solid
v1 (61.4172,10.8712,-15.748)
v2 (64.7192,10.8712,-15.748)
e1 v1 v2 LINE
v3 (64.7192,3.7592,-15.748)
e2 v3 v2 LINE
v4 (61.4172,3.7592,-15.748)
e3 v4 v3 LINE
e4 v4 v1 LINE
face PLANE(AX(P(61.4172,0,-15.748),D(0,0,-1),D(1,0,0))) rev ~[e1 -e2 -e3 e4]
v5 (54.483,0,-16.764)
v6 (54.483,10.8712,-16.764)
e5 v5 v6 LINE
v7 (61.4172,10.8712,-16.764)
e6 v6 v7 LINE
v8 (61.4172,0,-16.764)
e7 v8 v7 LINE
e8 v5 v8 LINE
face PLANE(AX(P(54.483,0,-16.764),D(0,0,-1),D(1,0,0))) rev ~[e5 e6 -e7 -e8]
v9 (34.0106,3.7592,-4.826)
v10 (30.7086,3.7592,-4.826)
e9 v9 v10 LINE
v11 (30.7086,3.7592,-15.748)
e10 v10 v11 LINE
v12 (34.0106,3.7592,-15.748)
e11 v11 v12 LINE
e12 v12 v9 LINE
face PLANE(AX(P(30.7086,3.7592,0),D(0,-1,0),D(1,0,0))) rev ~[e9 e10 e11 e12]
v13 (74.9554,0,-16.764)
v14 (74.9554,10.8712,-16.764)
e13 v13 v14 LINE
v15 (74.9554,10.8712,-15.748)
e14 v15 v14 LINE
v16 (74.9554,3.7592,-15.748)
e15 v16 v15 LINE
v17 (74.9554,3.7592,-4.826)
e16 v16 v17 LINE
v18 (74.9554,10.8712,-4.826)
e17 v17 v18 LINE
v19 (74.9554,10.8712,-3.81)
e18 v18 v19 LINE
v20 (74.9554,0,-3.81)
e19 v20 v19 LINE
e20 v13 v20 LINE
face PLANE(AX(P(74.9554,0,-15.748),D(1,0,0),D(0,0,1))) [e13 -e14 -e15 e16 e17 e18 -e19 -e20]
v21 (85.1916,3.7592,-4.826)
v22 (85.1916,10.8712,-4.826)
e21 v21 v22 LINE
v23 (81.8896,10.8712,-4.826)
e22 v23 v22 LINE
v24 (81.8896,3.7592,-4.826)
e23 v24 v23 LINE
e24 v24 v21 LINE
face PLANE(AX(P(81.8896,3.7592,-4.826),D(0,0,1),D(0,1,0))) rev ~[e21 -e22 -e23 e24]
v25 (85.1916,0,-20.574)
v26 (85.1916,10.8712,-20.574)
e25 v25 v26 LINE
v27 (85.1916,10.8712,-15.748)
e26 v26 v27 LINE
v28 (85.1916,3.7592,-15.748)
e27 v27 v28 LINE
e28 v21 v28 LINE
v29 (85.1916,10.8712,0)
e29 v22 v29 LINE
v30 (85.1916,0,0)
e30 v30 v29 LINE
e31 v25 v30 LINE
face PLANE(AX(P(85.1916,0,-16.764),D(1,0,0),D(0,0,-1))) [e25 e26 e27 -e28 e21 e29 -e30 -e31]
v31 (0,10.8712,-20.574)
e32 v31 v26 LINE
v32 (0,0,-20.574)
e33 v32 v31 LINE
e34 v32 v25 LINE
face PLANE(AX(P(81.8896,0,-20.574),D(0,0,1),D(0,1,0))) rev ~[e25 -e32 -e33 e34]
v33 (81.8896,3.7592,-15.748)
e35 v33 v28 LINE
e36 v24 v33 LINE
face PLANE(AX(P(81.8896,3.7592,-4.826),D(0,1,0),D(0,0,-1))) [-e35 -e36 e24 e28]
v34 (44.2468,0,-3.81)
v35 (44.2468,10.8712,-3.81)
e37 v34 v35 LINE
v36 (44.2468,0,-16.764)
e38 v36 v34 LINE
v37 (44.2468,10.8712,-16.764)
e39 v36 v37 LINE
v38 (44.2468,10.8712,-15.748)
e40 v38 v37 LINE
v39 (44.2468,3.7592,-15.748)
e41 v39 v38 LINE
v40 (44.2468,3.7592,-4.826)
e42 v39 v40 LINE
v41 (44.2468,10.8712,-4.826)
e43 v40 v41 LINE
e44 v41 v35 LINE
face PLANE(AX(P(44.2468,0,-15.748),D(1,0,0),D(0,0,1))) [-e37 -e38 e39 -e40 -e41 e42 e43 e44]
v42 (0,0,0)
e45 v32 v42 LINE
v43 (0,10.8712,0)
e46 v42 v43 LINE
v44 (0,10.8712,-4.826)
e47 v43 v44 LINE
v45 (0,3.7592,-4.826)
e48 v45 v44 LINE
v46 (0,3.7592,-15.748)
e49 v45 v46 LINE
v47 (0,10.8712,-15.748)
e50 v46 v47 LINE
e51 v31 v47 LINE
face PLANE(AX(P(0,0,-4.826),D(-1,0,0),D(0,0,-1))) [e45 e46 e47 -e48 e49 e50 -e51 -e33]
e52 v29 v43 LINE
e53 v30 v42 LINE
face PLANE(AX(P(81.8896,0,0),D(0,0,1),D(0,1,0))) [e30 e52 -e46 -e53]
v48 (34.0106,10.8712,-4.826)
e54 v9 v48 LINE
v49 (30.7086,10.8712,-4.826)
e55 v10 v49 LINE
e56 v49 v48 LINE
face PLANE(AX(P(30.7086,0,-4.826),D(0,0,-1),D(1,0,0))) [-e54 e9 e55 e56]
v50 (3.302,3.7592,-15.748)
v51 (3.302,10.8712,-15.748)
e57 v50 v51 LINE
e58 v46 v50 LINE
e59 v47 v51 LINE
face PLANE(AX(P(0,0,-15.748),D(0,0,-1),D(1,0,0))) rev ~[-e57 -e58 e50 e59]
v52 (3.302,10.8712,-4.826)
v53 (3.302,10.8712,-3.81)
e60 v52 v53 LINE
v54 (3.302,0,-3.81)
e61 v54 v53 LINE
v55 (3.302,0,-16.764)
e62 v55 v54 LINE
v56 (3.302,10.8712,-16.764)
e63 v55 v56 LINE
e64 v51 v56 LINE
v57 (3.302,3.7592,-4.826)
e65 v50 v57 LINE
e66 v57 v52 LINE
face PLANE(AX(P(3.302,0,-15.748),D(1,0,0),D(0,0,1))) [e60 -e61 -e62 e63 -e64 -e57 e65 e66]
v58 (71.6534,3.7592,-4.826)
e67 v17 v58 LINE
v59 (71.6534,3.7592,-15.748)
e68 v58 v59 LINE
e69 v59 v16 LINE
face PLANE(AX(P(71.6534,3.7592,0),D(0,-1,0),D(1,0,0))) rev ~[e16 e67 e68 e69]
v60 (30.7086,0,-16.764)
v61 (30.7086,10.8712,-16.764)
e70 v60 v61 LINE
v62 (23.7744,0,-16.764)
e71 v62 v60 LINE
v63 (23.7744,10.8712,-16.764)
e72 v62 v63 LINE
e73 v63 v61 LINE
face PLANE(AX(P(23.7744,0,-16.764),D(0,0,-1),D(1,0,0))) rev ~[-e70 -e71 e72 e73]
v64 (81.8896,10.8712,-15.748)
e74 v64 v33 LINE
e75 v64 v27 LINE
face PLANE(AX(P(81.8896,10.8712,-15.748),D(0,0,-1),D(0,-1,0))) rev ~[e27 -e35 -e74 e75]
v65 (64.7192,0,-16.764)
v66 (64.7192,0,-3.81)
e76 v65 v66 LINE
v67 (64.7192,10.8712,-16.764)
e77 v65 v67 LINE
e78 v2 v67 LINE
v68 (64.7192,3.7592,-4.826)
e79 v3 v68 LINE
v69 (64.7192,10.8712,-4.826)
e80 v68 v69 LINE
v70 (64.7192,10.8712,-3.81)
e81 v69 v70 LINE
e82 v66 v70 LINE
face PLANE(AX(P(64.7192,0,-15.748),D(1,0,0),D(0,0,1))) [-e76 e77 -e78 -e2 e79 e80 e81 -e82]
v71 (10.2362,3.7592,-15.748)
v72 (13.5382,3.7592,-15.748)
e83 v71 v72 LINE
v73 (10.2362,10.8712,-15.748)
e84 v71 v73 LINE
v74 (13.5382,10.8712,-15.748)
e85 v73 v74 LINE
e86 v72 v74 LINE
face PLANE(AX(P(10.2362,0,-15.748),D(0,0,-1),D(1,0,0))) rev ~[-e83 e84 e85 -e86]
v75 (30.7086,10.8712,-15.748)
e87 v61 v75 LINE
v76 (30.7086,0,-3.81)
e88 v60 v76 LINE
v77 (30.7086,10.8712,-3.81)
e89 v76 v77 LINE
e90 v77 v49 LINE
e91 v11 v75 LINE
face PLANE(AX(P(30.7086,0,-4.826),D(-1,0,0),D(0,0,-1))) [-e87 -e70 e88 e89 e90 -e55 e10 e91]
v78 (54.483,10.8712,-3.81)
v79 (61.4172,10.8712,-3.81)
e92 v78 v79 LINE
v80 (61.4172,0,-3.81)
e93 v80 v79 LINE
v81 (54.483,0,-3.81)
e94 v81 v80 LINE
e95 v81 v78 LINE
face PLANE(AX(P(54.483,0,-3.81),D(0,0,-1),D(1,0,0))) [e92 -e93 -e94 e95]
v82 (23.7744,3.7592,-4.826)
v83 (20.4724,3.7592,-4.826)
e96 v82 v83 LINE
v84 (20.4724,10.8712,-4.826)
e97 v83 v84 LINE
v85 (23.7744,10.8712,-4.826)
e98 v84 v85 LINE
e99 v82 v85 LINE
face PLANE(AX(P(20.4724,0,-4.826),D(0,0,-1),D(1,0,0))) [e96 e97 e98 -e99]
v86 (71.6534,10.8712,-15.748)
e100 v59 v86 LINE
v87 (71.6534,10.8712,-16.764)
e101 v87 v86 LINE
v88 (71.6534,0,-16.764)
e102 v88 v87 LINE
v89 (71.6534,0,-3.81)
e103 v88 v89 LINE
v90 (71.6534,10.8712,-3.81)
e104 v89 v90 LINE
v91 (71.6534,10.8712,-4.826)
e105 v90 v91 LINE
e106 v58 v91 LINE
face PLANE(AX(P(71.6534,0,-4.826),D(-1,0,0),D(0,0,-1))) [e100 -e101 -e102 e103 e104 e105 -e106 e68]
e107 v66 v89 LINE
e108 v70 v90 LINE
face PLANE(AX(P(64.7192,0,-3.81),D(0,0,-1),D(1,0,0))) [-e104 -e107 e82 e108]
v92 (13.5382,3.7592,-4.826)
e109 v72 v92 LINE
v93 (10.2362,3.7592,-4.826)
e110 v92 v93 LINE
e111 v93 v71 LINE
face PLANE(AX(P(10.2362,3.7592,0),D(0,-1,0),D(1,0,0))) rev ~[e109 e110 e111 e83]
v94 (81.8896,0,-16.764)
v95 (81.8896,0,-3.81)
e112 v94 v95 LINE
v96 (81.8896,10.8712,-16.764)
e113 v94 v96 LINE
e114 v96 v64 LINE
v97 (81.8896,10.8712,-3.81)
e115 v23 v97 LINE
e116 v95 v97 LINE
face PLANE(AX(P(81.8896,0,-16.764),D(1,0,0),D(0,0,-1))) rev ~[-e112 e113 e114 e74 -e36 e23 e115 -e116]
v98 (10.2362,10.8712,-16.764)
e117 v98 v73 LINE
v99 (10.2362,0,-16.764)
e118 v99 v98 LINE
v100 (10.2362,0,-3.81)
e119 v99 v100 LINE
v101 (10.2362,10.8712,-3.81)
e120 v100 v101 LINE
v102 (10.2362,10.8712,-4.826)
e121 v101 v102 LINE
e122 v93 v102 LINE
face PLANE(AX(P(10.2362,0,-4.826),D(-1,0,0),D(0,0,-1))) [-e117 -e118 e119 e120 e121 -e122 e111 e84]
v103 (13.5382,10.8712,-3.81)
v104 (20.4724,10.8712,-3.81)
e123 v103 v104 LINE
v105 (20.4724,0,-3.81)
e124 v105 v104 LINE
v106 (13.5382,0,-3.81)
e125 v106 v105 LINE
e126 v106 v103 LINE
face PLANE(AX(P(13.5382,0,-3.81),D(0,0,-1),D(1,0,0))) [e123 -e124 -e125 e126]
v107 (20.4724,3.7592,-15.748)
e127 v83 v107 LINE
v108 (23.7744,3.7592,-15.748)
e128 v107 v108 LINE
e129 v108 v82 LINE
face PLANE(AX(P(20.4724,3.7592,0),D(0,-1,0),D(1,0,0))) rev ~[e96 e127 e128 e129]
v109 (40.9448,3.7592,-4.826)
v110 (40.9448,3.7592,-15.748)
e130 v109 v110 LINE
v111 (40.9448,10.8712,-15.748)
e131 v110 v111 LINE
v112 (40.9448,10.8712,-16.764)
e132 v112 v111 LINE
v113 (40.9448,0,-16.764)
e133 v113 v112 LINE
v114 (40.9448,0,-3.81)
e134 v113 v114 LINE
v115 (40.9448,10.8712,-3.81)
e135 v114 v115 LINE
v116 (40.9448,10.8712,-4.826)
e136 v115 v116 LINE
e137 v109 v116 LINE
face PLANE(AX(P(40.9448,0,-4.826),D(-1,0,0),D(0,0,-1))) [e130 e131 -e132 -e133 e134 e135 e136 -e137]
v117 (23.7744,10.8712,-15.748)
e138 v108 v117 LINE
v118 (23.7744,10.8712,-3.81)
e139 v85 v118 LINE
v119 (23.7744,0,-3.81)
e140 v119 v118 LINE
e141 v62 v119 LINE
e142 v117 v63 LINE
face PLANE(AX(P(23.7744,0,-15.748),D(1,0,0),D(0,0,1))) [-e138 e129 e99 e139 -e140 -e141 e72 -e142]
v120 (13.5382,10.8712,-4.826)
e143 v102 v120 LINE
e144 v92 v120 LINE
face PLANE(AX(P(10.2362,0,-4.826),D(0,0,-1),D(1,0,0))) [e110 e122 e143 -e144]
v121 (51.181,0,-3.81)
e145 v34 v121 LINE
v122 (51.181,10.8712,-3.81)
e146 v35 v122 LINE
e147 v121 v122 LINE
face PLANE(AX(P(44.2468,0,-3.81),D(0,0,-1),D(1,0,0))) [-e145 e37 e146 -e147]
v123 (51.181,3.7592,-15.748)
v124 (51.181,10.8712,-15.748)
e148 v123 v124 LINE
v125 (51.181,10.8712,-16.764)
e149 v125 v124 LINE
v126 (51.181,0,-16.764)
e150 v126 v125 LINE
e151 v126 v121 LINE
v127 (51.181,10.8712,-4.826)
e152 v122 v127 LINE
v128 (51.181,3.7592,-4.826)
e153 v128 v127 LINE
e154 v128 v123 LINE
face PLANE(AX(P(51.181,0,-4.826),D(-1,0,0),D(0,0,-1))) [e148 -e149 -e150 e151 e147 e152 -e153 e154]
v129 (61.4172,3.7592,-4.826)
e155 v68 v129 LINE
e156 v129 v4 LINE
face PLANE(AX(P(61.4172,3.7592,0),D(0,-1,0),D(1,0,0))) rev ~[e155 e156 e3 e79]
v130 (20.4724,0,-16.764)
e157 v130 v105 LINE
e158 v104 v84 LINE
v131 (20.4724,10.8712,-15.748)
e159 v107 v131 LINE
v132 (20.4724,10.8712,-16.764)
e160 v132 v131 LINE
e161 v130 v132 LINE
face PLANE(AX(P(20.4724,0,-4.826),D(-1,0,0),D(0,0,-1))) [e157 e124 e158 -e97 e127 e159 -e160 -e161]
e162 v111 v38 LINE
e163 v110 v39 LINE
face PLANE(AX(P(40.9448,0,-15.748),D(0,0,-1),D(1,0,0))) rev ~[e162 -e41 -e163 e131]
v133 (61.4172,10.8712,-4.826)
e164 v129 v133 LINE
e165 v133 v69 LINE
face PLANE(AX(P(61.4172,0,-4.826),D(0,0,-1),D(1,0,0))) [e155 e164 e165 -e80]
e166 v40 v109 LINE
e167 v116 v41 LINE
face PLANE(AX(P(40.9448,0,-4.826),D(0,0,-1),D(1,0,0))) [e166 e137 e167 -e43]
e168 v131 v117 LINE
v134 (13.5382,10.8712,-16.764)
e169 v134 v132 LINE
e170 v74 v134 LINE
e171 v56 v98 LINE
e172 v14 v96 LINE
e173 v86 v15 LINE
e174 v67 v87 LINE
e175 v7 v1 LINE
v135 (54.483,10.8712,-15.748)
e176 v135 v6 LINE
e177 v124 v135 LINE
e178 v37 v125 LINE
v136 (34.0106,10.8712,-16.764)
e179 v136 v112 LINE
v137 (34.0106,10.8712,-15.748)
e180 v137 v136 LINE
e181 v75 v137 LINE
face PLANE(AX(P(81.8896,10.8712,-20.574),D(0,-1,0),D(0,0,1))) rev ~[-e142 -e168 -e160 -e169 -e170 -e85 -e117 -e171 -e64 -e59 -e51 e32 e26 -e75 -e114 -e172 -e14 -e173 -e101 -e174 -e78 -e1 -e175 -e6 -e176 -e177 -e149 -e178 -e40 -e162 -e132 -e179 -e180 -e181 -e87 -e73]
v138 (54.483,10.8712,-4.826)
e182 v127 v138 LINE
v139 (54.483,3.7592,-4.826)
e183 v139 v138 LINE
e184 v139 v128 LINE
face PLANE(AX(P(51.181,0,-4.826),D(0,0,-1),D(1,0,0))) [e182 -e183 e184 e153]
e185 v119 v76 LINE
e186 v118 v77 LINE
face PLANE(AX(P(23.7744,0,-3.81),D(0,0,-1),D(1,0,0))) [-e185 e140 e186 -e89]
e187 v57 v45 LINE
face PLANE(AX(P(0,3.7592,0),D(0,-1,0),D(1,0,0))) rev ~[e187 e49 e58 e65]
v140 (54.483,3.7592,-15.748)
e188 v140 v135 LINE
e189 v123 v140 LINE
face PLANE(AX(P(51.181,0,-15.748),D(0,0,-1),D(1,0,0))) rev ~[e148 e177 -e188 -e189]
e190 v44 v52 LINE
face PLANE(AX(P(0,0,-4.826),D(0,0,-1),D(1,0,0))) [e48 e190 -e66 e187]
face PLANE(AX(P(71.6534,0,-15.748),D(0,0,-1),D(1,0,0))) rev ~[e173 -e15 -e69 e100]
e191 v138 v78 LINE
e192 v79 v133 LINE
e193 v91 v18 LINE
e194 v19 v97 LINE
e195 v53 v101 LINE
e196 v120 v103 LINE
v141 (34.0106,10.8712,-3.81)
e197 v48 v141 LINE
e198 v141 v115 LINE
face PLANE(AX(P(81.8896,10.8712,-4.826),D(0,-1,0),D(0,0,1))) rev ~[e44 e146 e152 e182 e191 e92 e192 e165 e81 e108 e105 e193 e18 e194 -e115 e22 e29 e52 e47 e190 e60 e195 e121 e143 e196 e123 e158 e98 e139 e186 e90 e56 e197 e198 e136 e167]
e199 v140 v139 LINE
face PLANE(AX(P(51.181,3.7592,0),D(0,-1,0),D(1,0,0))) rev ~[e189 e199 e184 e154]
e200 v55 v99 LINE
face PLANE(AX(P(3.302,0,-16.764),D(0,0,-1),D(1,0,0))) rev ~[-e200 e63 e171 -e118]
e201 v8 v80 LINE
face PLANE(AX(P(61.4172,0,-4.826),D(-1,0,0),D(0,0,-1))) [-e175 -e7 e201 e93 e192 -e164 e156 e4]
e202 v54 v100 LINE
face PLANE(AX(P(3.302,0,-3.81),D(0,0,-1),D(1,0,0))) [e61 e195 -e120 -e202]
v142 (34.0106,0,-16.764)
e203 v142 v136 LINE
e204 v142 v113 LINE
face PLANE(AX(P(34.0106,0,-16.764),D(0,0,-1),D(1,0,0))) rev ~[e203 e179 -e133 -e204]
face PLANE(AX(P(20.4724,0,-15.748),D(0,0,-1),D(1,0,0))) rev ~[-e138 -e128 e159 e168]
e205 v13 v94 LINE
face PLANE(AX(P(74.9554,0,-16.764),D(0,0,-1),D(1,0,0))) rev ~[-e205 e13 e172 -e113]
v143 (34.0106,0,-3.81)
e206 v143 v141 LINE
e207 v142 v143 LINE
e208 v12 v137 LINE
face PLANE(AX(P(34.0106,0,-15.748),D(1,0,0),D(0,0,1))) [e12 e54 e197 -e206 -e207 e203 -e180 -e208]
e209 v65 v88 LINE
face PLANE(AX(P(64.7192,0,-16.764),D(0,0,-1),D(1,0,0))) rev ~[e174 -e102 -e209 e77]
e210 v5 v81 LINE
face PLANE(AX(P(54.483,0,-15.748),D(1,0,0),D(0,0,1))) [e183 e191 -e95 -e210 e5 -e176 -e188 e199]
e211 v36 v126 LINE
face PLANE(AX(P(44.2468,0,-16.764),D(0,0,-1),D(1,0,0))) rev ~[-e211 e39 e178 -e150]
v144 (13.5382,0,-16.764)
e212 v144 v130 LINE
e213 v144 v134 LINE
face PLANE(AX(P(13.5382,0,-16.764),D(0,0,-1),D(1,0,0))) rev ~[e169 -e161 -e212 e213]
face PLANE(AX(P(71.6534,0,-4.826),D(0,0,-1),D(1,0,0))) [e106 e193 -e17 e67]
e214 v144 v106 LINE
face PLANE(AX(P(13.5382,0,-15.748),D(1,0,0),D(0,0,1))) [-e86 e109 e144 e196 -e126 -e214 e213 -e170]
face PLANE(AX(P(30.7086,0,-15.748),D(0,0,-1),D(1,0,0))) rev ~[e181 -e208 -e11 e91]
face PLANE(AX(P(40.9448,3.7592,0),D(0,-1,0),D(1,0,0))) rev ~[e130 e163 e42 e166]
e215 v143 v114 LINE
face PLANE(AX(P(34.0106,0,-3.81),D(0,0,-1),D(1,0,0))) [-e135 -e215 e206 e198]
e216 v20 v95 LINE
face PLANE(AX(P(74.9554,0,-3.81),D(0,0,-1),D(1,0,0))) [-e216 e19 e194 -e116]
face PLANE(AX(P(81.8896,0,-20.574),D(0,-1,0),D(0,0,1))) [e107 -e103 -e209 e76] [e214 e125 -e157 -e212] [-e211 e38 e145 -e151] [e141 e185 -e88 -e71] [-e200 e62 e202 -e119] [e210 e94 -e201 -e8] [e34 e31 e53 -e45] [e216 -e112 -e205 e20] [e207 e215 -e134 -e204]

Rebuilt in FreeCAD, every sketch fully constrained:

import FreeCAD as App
import Part
import Sketcher

V = App.Vector
Q = App.Units.Quantity


def add_polygon(sketch, points):
    """Adds a closed chain of lines whose ends are joined by coincident constraints."""
    first, n = sketch.GeometryCount, len(points)
    for a, b in zip(points, points[1:] + points[:1]):
        sketch.addGeometry(Part.LineSegment(App.Vector(*a, 0), App.Vector(*b, 0)), False)
    for i in range(n):
        sketch.addConstraint(Sketcher.Constraint("Coincident", first + i, 2, first + (i + 1) % n, 1))

doc = App.newDocument("Part")
body = doc.addObject("PartDesign::Body", "Body")
body.AllowCompound = True

# Sketch on XZ plane
sketch1 = body.newObject("Sketcher::SketchObject", "Sketch")
sketch1.AttachmentSupport = (doc.getObject("XZ_Plane"), [""])
sketch1.MapMode = "FlatFace"
add_polygon(sketch1, [(10.2, -20.6), (0, -20.6), (0, -15.7), (3.3, -15.7), (3.3, -16.8), (10.2, -16.8)])  # lines 0-5
add_polygon(sketch1, [(0, -4.8), (0, 0), (10.2, 0), (10.2, -3.8), (3.3, -3.8), (3.3, -4.8)])  # lines 6-11
sketch1.addConstraint([
    Sketcher.Constraint("Horizontal", 0),
    Sketcher.Constraint("Vertical", 1),
    Sketcher.Constraint("Horizontal", 2),
    Sketcher.Constraint("Vertical", 3),
    Sketcher.Constraint("Horizontal", 4),
    Sketcher.Constraint("Vertical", 5),
    Sketcher.Constraint("Vertical", 6),
    Sketcher.Constraint("Horizontal", 7),
    Sketcher.Constraint("Vertical", 8),
    Sketcher.Constraint("Horizontal", 9),
    Sketcher.Constraint("Vertical", 10),
    Sketcher.Constraint("Horizontal", 11),
    Sketcher.Constraint("Coincident", 6, 2, -1, 1),
    Sketcher.Constraint("PointOnObject", 0, 2, -2),
    Sketcher.Constraint("Vertical", 5, 2, 7, 2),
    Sketcher.Constraint("Vertical", 3, 2, 9, 2),
    Sketcher.Constraint("Equal", 1, 6),
    Sketcher.Constraint("Equal", 5, 8),
    Sketcher.Constraint("DistanceX", 2, 1, 2, 2, Q("0.13 in")),
    Sketcher.Constraint("DistanceY", 3, 2, 3, 1, Q("0.04 in")),
    Sketcher.Constraint("DistanceY", 5, 2, 5, 1, Q("0.15 in")),
    Sketcher.Constraint("DistanceX", 4, 1, 4, 2, Q("0.273 in")),
    Sketcher.Constraint("DistanceY", 0, 2, -1, 1, Q("0.81 in")),
])
pad1 = body.newObject("PartDesign::Pad", "Pad")
pad1.Profile = sketch1
pad1.Length = Q("0.428 in")
pad1.Reversed = True

# Sketch on XZ plane
sketch2 = body.newObject("Sketcher::SketchObject", "Sketch001")
sketch2.AttachmentSupport = (doc.getObject("XZ_Plane"), [""])
sketch2.MapMode = "FlatFace"
add_polygon(sketch2, [(0, -4.8), (0, -15.7), (3.3, -15.7), (3.3, -4.8)])  # lines 0-3
sketch2.addConstraint([
    Sketcher.Constraint("Vertical", 0),
    Sketcher.Constraint("Horizontal", 1),
    Sketcher.Constraint("Vertical", 2),
    Sketcher.Constraint("Horizontal", 3),
    Sketcher.Constraint("PointOnObject", 0, 2, -2),
    Sketcher.Constraint("DistanceX", 1, 1, 1, 2, Q("0.13 in")),
    Sketcher.Constraint("DistanceY", 0, 2, 0, 1, Q("0.43 in")),
    Sketcher.Constraint("DistanceY", 0, 2, -1, 1, Q("0.62 in")),
])
pad2 = body.newObject("PartDesign::Pad", "Pad001")
pad2.Profile = sketch2
pad2.Length = Q("0.148 in")
pad2.Reversed = True
doc.recompute()

linearpattern = body.newObject("PartDesign::LinearPattern", "LinearPattern")
linearpattern.Originals = [pad1, pad2]
linearpattern.Direction = (doc.getObject("X_Axis"), [""])
linearpattern.Mode = "offset"
linearpattern.Offset = Q("0.403 in")
linearpattern.Occurrences = 8
body.Tip = linearpattern

# Sketch on YZ plane
sketch3 = body.newObject("Sketcher::SketchObject", "Sketch002")
sketch3.AttachmentSupport = (doc.getObject("YZ_Plane"), [""])
sketch3.MapMode = "FlatFace"
sketch3.AttachmentOffset = App.Placement(V(0, 0, 3.224 * 25.4), App.Rotation())
add_polygon(sketch3, [(0, 0), (0, -20.6), (10.9, -20.6), (10.9, -15.7), (3.8, -15.7), (3.8, -4.8), (10.9, -4.8), (10.9, 0)])  # lines 0-7
sketch3.addConstraint([
    Sketcher.Constraint("Vertical", 0),
    Sketcher.Constraint("Horizontal", 1),
    Sketcher.Constraint("Vertical", 2),
    Sketcher.Constraint("Horizontal", 3),
    Sketcher.Constraint("Vertical", 4),
    Sketcher.Constraint("Horizontal", 5),
    Sketcher.Constraint("Vertical", 6),
    Sketcher.Constraint("Horizontal", 7),
    Sketcher.Constraint("Coincident", 7, 2, -1, 1),
    Sketcher.Constraint("Vertical", 2, 2, 5, 2),
    Sketcher.Constraint("Equal", 2, 6),
    Sketcher.Constraint("DistanceX", 3, 2, 3, 1, Q("0.28 in")),
    Sketcher.Constraint("DistanceY", 0, 2, 0, 1, Q("0.81 in")),
    Sketcher.Constraint("DistanceY", 2, 1, 2, 2, Q("0.19 in")),
    Sketcher.Constraint("DistanceX", 1, 1, 1, 2, Q("0.428 in")),
])
pad3 = body.newObject("PartDesign::Pad", "Pad002")
pad3.Profile = sketch3
pad3.Length = Q("0.13 in")

doc.recompute()
